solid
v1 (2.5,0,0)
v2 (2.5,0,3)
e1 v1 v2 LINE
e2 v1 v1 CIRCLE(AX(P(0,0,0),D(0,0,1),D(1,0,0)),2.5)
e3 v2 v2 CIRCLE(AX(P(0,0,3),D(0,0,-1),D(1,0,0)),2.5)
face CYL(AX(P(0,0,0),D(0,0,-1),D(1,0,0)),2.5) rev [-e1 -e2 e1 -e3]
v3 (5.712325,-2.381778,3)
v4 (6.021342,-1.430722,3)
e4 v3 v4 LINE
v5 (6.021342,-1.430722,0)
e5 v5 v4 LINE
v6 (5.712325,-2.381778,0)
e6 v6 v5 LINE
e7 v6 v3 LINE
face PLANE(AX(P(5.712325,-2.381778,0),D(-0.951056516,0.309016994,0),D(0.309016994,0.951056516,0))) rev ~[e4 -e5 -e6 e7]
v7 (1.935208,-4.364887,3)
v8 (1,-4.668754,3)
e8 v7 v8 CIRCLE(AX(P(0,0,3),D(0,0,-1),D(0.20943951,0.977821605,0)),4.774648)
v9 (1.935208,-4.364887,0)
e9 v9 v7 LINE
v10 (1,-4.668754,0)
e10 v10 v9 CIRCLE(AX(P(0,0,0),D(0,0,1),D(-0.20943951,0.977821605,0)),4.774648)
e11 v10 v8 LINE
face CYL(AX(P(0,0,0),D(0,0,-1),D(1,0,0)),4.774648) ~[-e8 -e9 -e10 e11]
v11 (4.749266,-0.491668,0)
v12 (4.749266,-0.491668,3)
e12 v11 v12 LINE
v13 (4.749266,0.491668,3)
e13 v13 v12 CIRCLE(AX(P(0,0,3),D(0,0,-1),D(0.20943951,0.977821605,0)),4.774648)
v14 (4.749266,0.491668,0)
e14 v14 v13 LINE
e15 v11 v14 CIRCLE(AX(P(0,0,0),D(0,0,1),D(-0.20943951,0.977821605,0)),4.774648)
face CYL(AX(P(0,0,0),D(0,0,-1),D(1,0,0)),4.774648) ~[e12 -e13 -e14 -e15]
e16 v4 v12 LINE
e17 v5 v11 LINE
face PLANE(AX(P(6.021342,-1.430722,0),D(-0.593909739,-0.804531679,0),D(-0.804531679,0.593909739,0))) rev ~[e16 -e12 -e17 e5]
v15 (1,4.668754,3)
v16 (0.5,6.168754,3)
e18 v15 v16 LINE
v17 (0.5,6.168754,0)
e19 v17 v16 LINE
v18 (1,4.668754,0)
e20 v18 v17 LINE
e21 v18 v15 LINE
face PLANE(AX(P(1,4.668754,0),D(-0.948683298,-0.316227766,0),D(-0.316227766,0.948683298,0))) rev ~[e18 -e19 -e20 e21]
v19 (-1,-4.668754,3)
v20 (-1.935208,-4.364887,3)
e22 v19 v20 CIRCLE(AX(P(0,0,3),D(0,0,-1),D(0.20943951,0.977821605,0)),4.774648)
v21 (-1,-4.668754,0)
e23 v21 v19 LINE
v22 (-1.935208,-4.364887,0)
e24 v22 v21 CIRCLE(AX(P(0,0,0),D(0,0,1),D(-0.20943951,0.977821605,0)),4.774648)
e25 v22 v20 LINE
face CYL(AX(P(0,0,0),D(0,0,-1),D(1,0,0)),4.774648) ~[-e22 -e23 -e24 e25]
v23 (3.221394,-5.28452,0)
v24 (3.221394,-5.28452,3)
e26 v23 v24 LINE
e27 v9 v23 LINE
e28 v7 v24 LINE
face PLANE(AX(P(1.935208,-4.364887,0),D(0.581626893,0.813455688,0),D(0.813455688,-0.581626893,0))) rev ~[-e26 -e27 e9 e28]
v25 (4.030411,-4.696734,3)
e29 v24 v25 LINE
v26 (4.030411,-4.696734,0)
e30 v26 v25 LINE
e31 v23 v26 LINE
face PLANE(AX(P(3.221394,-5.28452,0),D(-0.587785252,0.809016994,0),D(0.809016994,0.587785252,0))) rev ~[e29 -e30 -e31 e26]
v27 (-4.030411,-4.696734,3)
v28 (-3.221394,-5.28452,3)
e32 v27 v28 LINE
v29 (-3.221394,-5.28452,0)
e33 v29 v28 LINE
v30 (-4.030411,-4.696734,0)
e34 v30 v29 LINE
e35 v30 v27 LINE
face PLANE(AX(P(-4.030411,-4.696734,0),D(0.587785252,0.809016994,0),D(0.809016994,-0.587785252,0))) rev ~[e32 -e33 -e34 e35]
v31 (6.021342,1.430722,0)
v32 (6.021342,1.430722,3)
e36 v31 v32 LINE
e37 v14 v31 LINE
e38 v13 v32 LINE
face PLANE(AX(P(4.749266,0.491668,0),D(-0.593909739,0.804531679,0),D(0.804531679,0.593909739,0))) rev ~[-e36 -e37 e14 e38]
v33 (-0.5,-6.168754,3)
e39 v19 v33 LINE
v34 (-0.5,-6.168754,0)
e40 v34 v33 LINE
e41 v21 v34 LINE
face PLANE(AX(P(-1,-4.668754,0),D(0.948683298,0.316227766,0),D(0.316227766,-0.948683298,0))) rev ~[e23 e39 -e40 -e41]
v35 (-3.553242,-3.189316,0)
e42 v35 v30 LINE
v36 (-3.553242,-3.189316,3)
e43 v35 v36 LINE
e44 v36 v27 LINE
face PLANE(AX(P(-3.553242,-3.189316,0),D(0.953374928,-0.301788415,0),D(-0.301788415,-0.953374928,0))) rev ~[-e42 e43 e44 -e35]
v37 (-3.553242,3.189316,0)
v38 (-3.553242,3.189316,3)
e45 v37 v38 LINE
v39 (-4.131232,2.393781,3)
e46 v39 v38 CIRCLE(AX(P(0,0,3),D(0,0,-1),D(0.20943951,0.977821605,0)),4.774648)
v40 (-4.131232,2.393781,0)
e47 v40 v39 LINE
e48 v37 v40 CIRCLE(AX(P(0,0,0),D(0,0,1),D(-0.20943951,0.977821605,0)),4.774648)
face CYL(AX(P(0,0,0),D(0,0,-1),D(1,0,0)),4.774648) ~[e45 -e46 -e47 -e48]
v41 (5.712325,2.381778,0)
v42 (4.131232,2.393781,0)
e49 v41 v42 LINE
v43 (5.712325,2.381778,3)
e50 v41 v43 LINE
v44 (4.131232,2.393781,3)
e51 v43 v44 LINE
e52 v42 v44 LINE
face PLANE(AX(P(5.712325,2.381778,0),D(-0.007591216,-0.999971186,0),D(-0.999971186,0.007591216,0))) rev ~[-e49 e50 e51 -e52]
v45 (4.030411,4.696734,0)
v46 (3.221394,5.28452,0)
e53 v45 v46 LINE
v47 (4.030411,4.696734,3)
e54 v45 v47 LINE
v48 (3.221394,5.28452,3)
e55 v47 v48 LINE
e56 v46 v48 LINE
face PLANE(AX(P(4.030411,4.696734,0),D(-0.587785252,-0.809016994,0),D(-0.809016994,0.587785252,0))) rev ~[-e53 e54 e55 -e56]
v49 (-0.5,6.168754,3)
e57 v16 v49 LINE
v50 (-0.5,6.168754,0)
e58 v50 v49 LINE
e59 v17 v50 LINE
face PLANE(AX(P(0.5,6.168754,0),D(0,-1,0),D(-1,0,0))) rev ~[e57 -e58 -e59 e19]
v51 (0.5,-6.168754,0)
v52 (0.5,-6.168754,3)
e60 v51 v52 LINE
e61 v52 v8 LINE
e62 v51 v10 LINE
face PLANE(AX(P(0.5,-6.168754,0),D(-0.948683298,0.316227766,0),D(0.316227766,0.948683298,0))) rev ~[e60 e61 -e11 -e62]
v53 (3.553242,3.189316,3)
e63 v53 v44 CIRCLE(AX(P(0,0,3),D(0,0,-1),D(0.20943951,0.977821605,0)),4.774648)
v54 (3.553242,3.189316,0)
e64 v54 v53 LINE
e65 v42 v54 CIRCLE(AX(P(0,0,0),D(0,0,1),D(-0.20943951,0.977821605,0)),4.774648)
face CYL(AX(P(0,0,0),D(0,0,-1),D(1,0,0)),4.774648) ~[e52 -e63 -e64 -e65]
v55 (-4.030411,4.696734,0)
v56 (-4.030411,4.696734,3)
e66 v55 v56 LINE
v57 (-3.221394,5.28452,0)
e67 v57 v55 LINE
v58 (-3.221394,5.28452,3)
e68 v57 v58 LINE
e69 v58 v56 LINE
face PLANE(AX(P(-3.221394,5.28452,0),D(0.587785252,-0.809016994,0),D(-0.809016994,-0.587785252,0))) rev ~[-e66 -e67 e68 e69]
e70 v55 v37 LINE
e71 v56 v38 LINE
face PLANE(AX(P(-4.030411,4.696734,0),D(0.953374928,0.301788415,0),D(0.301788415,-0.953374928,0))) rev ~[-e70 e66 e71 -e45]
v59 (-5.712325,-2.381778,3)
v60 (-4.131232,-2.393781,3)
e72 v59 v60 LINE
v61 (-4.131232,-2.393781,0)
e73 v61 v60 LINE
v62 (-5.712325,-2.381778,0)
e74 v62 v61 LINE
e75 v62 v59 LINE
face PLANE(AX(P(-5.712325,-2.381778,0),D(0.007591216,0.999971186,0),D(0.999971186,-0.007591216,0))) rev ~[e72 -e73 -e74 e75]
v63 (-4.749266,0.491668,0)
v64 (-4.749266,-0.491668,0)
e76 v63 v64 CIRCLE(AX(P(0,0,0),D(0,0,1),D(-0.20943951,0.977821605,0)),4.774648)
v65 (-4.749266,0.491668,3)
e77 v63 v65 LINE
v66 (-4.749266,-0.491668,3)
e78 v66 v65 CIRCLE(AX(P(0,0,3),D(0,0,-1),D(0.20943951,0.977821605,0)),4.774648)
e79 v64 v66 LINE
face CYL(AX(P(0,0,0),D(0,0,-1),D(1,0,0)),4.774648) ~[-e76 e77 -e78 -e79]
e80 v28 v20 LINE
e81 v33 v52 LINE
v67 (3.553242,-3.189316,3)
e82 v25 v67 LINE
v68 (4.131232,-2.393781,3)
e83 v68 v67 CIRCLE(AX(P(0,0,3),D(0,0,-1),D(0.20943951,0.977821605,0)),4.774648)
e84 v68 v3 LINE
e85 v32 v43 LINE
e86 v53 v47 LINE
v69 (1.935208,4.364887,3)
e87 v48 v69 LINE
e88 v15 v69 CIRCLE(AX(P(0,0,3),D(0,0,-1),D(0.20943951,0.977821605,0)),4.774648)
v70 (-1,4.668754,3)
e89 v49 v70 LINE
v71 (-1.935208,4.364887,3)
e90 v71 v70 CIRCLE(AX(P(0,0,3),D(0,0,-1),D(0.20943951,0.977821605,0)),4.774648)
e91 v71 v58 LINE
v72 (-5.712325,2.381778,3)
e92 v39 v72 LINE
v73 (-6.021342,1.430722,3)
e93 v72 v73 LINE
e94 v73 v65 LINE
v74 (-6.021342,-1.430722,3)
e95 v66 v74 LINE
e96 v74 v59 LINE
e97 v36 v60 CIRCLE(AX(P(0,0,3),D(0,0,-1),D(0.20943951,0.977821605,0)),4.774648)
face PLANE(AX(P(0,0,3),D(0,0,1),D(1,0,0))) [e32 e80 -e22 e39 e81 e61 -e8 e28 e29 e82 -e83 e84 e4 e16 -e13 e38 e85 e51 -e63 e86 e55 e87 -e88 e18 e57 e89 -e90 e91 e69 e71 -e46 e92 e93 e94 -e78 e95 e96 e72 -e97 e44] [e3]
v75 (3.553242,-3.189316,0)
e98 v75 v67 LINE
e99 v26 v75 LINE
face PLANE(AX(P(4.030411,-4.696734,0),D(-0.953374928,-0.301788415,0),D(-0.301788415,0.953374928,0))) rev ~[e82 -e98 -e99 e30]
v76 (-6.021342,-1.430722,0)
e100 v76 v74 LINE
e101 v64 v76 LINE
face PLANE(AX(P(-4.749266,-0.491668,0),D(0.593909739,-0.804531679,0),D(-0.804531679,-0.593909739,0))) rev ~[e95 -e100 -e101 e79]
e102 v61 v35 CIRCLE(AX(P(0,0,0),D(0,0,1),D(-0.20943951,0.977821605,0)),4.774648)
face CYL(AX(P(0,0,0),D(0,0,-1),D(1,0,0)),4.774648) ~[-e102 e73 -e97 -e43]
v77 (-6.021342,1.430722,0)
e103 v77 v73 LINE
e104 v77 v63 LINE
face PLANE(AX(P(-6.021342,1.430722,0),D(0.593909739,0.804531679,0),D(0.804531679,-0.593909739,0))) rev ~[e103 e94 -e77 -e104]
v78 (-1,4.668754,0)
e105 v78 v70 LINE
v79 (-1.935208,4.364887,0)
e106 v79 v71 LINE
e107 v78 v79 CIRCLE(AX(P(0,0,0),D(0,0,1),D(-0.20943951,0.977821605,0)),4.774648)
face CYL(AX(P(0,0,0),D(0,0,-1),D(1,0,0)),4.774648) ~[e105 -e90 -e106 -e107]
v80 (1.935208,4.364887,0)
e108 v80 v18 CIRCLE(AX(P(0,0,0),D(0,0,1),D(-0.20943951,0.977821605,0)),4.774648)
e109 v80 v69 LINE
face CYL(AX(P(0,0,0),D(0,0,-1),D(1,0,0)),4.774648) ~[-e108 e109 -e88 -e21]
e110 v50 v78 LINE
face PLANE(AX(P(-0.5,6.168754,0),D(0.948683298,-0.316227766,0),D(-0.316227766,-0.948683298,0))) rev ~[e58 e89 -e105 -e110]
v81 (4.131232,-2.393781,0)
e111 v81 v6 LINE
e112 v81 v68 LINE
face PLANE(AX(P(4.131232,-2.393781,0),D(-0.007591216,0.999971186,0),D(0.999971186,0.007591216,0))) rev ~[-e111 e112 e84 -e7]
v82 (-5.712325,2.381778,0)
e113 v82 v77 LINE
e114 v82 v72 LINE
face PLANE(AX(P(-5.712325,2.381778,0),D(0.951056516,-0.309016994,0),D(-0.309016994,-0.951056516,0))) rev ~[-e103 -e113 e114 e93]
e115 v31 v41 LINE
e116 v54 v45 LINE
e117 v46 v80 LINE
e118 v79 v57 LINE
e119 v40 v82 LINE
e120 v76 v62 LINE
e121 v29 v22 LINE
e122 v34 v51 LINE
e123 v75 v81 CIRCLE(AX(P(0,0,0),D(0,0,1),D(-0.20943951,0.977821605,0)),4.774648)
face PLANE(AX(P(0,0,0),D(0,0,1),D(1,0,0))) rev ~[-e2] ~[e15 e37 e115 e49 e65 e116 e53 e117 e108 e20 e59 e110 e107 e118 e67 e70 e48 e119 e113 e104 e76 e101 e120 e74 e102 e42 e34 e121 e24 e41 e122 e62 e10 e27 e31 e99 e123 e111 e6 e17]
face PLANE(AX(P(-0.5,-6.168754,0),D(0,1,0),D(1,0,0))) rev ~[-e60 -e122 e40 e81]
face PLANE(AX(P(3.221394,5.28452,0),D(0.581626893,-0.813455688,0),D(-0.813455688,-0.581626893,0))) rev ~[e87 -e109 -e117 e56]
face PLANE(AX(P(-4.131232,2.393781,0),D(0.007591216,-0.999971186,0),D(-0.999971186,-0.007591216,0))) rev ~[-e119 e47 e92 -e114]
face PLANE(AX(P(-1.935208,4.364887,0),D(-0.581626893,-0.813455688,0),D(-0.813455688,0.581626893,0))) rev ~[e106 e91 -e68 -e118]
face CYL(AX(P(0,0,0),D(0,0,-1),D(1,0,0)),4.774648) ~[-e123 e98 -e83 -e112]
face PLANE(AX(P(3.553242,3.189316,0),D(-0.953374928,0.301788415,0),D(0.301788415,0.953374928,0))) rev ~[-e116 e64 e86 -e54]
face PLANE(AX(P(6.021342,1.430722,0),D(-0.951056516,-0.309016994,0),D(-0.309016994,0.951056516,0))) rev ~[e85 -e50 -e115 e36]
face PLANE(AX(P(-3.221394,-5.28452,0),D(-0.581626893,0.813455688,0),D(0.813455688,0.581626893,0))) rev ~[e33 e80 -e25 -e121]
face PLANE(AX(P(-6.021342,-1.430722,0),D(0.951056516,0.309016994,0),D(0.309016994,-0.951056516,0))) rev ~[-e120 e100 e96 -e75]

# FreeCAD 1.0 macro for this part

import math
import FreeCAD as App
import Part
import Sketcher
from FreeCAD import Vector

doc = App.newDocument("Part")
body = doc.addObject("PartDesign::Body", "Body")

# Sketch on XY plane
sketch1 = body.newObject("Sketcher::SketchObject", "Sketch")
sketch1.AttachmentSupport = (doc.getObject("XY_Plane"), [""])
sketch1.MapMode = "FlatFace"
sketch1.addGeometry([
    Part.LineSegment(Vector(1, 4.668754, 0), Vector(0.5, 6.168754, 0)),  # 0
    Part.LineSegment(Vector(0.5, 6.168754, 0), Vector(-0.5, 6.168754, 0)),  # 1
    Part.LineSegment(Vector(-0.5, 6.168754, 0), Vector(-1, 4.668754, 0)),  # 2
    Part.ArcOfCircle(Part.Circle(Vector(0, 0, 0), Vector(0, 0, 1), 4.774648), math.radians(102.089508), math.radians(437.910492)),  # 3
    Part.Circle(Vector(0, 0, 0), Vector(0, 0, 1), 2.5),  # 4
], False)
sketch1.addConstraint([
    Sketcher.Constraint("Coincident", 0, 2, 1, 1),
    Sketcher.Constraint("Coincident", 1, 2, 2, 1),
    Sketcher.Constraint("Coincident", 2, 2, 3, 1),
    Sketcher.Constraint("Coincident", 3, 2, 0, 1),
    Sketcher.Constraint("Horizontal", 1),
    Sketcher.Constraint("Coincident", 3, 3, -1, 1),
    Sketcher.Constraint("Coincident", 4, 3, -1, 1),
    Sketcher.Constraint("Horizontal", 2, 2, 3, 2),
    Sketcher.Constraint("Equal", 0, 2),
    Sketcher.Constraint("Diameter", 4, 5.0),
    Sketcher.Constraint("DistanceX", 1, 2, 1, 1, 1.0),
    Sketcher.Constraint("DistanceX", 2, 2, -1, 1, 1.0),
    Sketcher.Constraint("DistanceY", 2, 2, 1, 2, 1.5),
    Sketcher.Constraint("Radius", 3, 4.774648),
])
pad1 = body.newObject("PartDesign::Pad", "Pad")
pad1.Profile = sketch1
pad1.Length = 3
body2 = doc.addObject("PartDesign::Body", "Body001")
doc.recompute()

body2.BaseFeature = body
doc.recompute()

body3 = doc.addObject("PartDesign::Body", "Body002")
body3.BaseFeature = body
body3.Placement = App.Placement(Vector(0, 0, 0), App.Rotation(Vector(0, 0, -1), 36))
boolean = body2.newObject("PartDesign::Boolean", "Boolean")
boolean.Type = "Fuse"
boolean.addObjects([body3])
doc.recompute()

body4 = doc.addObject("PartDesign::Body", "Body003")
body4.BaseFeature = body
body4.Placement = App.Placement(Vector(0, 0, 0), App.Rotation(Vector(0, 0, -1), 72))
boolean2 = body2.newObject("PartDesign::Boolean", "Boolean001")
boolean2.Type = "Fuse"
boolean2.addObjects([body4])
doc.recompute()

body5 = doc.addObject("PartDesign::Body", "Body004")
body5.BaseFeature = body
body5.Placement = App.Placement(Vector(0, 0, 0), App.Rotation(Vector(0, 0, -1), 108))
boolean3 = body2.newObject("PartDesign::Boolean", "Boolean002")
boolean3.Type = "Fuse"
boolean3.addObjects([body5])
doc.recompute()

body6 = doc.addObject("PartDesign::Body", "Body005")
body6.BaseFeature = body
body6.Placement = App.Placement(Vector(0, 0, 0), App.Rotation(Vector(0, 0, -1), 144))
boolean4 = body2.newObject("PartDesign::Boolean", "Boolean003")
boolean4.Type = "Fuse"
boolean4.addObjects([body6])
doc.recompute()

body7 = doc.addObject("PartDesign::Body", "Body006")
body7.BaseFeature = body
body7.Placement = App.Placement(Vector(0, 0, 0), App.Rotation(Vector(0, 0, -1), 180))
boolean5 = body2.newObject("PartDesign::Boolean", "Boolean004")
boolean5.Type = "Fuse"
boolean5.addObjects([body7])
doc.recompute()

body8 = doc.addObject("PartDesign::Body", "Body007")
body8.BaseFeature = body
body8.Placement = App.Placement(Vector(0, 0, 0), App.Rotation(Vector(0, 0, -1), 216))
boolean6 = body2.newObject("PartDesign::Boolean", "Boolean005")
boolean6.Type = "Fuse"
boolean6.addObjects([body8])
doc.recompute()

body9 = doc.addObject("PartDesign::Body", "Body008")
body9.BaseFeature = body
body9.Placement = App.Placement(Vector(0, 0, 0), App.Rotation(Vector(0, 0, -1), 252))
boolean7 = body2.newObject("PartDesign::Boolean", "Boolean006")
boolean7.Type = "Fuse"
boolean7.addObjects([body9])
doc.recompute()

body10 = doc.addObject("PartDesign::Body", "Body009")
body10.BaseFeature = body
body10.Placement = App.Placement(Vector(0, 0, 0), App.Rotation(Vector(0, 0, -1), 288))
boolean8 = body2.newObject("PartDesign::Boolean", "Boolean007")
boolean8.Type = "Fuse"
boolean8.addObjects([body10])
doc.recompute()

body.Placement = App.Placement(Vector(0, 0, 0), App.Rotation(Vector(0, 0, -1), 324))
boolean9 = body2.newObject("PartDesign::Boolean", "Boolean008")
boolean9.Type = "Fuse"
boolean9.addObjects([body])

doc.recompute()
